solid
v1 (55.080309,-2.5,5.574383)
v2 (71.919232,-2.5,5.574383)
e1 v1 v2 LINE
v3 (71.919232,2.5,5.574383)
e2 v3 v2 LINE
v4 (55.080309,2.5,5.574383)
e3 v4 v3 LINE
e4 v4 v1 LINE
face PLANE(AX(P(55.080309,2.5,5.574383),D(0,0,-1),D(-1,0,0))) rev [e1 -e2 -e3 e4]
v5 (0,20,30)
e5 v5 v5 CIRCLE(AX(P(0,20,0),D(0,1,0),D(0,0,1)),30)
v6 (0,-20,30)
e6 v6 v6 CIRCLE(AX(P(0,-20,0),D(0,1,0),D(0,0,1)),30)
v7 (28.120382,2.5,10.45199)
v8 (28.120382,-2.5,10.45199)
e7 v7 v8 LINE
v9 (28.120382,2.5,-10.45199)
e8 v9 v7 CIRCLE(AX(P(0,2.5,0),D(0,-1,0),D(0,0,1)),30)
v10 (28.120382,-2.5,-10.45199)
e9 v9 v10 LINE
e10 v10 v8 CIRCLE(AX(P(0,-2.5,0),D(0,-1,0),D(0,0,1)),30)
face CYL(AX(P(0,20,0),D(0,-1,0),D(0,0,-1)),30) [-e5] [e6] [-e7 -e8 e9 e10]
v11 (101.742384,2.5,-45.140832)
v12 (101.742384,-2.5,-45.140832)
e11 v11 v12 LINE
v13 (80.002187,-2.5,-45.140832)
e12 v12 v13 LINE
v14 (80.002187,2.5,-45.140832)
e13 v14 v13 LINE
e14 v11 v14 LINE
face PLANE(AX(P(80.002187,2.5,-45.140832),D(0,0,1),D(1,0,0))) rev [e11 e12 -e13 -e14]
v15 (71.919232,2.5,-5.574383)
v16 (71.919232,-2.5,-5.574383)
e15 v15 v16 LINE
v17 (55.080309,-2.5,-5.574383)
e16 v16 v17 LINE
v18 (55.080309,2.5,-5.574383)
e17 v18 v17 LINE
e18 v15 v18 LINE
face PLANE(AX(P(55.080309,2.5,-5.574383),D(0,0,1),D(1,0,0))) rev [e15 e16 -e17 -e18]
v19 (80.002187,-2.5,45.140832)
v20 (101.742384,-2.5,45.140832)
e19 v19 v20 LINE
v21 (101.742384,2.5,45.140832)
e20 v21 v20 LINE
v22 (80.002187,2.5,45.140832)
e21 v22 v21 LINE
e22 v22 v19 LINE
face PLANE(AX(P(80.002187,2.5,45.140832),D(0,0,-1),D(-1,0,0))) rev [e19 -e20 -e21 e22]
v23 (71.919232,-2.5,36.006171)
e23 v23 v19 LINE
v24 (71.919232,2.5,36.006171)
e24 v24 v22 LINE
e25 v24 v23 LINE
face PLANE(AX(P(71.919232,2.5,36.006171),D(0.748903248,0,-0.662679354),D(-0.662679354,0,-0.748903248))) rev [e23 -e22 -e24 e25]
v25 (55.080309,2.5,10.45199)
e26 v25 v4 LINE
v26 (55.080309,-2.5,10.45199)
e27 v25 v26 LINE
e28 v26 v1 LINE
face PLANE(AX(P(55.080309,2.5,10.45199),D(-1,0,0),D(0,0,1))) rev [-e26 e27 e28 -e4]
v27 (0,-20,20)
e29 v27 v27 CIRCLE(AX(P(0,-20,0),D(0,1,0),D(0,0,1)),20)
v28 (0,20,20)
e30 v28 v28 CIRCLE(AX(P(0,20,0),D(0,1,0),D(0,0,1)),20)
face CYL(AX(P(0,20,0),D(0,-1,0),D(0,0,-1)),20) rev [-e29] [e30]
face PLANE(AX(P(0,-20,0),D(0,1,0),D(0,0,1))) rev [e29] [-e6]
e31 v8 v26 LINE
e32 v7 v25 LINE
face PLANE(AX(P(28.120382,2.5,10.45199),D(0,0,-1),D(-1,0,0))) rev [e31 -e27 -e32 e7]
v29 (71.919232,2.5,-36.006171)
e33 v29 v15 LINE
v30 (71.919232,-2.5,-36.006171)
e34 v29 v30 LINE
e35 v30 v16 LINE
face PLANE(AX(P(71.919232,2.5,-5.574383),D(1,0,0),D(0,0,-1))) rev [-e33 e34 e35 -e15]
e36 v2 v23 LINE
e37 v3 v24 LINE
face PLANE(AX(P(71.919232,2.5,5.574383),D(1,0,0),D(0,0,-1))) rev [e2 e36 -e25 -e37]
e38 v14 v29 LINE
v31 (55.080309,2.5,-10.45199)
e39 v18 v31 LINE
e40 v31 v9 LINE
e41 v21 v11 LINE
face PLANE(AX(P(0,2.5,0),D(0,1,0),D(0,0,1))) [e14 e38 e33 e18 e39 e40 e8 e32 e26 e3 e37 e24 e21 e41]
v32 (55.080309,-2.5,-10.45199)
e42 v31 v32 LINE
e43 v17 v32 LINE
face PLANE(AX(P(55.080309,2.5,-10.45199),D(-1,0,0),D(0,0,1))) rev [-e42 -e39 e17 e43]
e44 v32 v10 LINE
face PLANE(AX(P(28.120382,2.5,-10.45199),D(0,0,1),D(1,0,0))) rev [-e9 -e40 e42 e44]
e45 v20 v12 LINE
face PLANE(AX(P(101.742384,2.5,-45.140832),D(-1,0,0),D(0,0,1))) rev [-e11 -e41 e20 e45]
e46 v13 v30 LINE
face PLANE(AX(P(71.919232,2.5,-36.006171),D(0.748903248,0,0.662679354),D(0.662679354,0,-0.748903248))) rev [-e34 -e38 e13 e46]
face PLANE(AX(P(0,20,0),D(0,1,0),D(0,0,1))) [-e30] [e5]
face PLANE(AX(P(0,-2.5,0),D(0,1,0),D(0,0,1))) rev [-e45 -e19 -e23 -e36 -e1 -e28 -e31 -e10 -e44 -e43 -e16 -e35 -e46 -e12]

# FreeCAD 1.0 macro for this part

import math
import FreeCAD as App
import Part
import Sketcher
Q = App.Units.Quantity

doc = App.newDocument("Part")
body = doc.addObject("PartDesign::Body", "Body")

sketch1 = body.newObject("Sketcher::SketchObject", "Sketch")
sketch1.AttachmentSupport = (doc.getObject("XZ_Plane"), [""])
sketch1.MapMode = "FlatFace"
sketch1.addGeometry([
    Part.Circle(App.Vector(0, 0, 0), App.Vector(0, 0, 1), 30),
    Part.Circle(App.Vector(0, 0, 0), App.Vector(0, 0, 1), 20),
], False)
sketch1.addConstraint([
    Sketcher.Constraint("Coincident", 0, 3, -1, 1),
    Sketcher.Constraint("Coincident", 1, 3, -1, 1),
    Sketcher.Constraint("Diameter", 0, Q("60 mm")),
    Sketcher.Constraint("Diameter", 1, Q("40 mm")),
])
pad1 = body.newObject("PartDesign::Pad", "Pad")
pad1.Profile = sketch1
pad1.Length = 40
pad1.Midplane = True

sketch2 = body.newObject("Sketcher::SketchObject", "Sketch001")
sketch2.AttachmentSupport = (doc.getObject("XZ_Plane"), [""])
sketch2.MapMode = "FlatFace"
sketch2.addGeometry([
    Part.LineSegment(App.Vector(55.1, -10.5, 0), App.Vector(28.1, -10.5, 0)),
    Part.ArcOfCircle(Part.Circle(App.Vector(0, 0, 0), App.Vector(0, 0, 1), 30), math.radians(-20), math.radians(20)),
    Part.LineSegment(App.Vector(28.1, 10.5, 0), App.Vector(55.1, 10.5, 0)),
    Part.LineSegment(App.Vector(55.1, 10.5, 0), App.Vector(55.1, 5.6, 0)),
    Part.LineSegment(App.Vector(55.1, 5.6, 0), App.Vector(71.9, 5.6, 0)),
    Part.LineSegment(App.Vector(71.9, 5.6, 0), App.Vector(71.9, 36, 0)),
    Part.LineSegment(App.Vector(71.9, 36, 0), App.Vector(80, 45.1, 0)),
    Part.LineSegment(App.Vector(80, 45.1, 0), App.Vector(101.7, 45.1, 0)),
    Part.LineSegment(App.Vector(101.7, 45.1, 0), App.Vector(101.7, -45.1, 0)),
    Part.LineSegment(App.Vector(101.7, -45.1, 0), App.Vector(80, -45.1, 0)),
    Part.LineSegment(App.Vector(80, -45.1, 0), App.Vector(71.9, -36, 0)),
    Part.LineSegment(App.Vector(71.9, -36, 0), App.Vector(71.9, -5.6, 0)),
    Part.LineSegment(App.Vector(71.9, -5.6, 0), App.Vector(55.1, -5.6, 0)),
    Part.LineSegment(App.Vector(55.1, -5.6, 0), App.Vector(55.1, -10.5, 0)),
], False)
sketch2.addConstraint([
    Sketcher.Constraint("Coincident", 0, 2, 1, 1),
    Sketcher.Constraint("Coincident", 1, 2, 2, 1),
    Sketcher.Constraint("Coincident", 2, 2, 3, 1),
    Sketcher.Constraint("Coincident", 3, 2, 4, 1),
    Sketcher.Constraint("Coincident", 4, 2, 5, 1),
    Sketcher.Constraint("Coincident", 5, 2, 6, 1),
    Sketcher.Constraint("Coincident", 6, 2, 7, 1),
    Sketcher.Constraint("Coincident", 7, 2, 8, 1),
    Sketcher.Constraint("Coincident", 8, 2, 9, 1),
    Sketcher.Constraint("Coincident", 9, 2, 10, 1),
    Sketcher.Constraint("Coincident", 10, 2, 11, 1),
    Sketcher.Constraint("Coincident", 11, 2, 12, 1),
    Sketcher.Constraint("Coincident", 12, 2, 13, 1),
    Sketcher.Constraint("Coincident", 13, 2, 0, 1),
    Sketcher.Constraint("Horizontal", 0),
    Sketcher.Constraint("Horizontal", 2),
    Sketcher.Constraint("Vertical", 3),
    Sketcher.Constraint("Horizontal", 4),
    Sketcher.Constraint("Vertical", 5),
    Sketcher.Constraint("Horizontal", 7),
    Sketcher.Constraint("Vertical", 8),
    Sketcher.Constraint("Horizontal", 9),
    Sketcher.Constraint("Vertical", 11),
    Sketcher.Constraint("Horizontal", 12),
    Sketcher.Constraint("Vertical", 13),
    Sketcher.Constraint("Coincident", 1, 3, -1, 1),
    Sketcher.Constraint("Symmetric", 6, 2, 9, 2, -1),
    Sketcher.Constraint("Symmetric", 5, 2, 10, 2, -1),
    Sketcher.Constraint("Symmetric", 3, 2, 12, 2, -1),
    Sketcher.Constraint("Vertical", 0, 2, 1, 2),
    Sketcher.Constraint("Radius", 1, Q("30 mm")),
    Sketcher.Constraint("DistanceY", 5, 1, 5, 2, Q("30.431789 mm")),
    Sketcher.Constraint("DistanceX", 0, 2, 0, 1, Q("26.959926 mm")),
    Sketcher.Constraint("DistanceX", 4, 1, 4, 2, Q("16.838923 mm")),
    Sketcher.Constraint("DistanceX", 7, 1, 7, 2, Q("21.740198 mm")),
    Sketcher.Constraint("DistanceY", 3, 2, 3, 1, Q("4.877607 mm")),
    Sketcher.Constraint("DistanceY", 8, 2, 8, 1, Q("90.281665 mm")),
    Sketcher.Constraint("DistanceY", 0, 2, -1, 1, Q("10.45199 mm")),
    Sketcher.Constraint("DistanceX", 2, 2, 6, 2, Q("24.921878 mm")),
])
pad2 = body.newObject("PartDesign::Pad", "Pad001")
pad2.Profile = sketch2
pad2.Length = 5
pad2.Midplane = True

doc.recompute()
